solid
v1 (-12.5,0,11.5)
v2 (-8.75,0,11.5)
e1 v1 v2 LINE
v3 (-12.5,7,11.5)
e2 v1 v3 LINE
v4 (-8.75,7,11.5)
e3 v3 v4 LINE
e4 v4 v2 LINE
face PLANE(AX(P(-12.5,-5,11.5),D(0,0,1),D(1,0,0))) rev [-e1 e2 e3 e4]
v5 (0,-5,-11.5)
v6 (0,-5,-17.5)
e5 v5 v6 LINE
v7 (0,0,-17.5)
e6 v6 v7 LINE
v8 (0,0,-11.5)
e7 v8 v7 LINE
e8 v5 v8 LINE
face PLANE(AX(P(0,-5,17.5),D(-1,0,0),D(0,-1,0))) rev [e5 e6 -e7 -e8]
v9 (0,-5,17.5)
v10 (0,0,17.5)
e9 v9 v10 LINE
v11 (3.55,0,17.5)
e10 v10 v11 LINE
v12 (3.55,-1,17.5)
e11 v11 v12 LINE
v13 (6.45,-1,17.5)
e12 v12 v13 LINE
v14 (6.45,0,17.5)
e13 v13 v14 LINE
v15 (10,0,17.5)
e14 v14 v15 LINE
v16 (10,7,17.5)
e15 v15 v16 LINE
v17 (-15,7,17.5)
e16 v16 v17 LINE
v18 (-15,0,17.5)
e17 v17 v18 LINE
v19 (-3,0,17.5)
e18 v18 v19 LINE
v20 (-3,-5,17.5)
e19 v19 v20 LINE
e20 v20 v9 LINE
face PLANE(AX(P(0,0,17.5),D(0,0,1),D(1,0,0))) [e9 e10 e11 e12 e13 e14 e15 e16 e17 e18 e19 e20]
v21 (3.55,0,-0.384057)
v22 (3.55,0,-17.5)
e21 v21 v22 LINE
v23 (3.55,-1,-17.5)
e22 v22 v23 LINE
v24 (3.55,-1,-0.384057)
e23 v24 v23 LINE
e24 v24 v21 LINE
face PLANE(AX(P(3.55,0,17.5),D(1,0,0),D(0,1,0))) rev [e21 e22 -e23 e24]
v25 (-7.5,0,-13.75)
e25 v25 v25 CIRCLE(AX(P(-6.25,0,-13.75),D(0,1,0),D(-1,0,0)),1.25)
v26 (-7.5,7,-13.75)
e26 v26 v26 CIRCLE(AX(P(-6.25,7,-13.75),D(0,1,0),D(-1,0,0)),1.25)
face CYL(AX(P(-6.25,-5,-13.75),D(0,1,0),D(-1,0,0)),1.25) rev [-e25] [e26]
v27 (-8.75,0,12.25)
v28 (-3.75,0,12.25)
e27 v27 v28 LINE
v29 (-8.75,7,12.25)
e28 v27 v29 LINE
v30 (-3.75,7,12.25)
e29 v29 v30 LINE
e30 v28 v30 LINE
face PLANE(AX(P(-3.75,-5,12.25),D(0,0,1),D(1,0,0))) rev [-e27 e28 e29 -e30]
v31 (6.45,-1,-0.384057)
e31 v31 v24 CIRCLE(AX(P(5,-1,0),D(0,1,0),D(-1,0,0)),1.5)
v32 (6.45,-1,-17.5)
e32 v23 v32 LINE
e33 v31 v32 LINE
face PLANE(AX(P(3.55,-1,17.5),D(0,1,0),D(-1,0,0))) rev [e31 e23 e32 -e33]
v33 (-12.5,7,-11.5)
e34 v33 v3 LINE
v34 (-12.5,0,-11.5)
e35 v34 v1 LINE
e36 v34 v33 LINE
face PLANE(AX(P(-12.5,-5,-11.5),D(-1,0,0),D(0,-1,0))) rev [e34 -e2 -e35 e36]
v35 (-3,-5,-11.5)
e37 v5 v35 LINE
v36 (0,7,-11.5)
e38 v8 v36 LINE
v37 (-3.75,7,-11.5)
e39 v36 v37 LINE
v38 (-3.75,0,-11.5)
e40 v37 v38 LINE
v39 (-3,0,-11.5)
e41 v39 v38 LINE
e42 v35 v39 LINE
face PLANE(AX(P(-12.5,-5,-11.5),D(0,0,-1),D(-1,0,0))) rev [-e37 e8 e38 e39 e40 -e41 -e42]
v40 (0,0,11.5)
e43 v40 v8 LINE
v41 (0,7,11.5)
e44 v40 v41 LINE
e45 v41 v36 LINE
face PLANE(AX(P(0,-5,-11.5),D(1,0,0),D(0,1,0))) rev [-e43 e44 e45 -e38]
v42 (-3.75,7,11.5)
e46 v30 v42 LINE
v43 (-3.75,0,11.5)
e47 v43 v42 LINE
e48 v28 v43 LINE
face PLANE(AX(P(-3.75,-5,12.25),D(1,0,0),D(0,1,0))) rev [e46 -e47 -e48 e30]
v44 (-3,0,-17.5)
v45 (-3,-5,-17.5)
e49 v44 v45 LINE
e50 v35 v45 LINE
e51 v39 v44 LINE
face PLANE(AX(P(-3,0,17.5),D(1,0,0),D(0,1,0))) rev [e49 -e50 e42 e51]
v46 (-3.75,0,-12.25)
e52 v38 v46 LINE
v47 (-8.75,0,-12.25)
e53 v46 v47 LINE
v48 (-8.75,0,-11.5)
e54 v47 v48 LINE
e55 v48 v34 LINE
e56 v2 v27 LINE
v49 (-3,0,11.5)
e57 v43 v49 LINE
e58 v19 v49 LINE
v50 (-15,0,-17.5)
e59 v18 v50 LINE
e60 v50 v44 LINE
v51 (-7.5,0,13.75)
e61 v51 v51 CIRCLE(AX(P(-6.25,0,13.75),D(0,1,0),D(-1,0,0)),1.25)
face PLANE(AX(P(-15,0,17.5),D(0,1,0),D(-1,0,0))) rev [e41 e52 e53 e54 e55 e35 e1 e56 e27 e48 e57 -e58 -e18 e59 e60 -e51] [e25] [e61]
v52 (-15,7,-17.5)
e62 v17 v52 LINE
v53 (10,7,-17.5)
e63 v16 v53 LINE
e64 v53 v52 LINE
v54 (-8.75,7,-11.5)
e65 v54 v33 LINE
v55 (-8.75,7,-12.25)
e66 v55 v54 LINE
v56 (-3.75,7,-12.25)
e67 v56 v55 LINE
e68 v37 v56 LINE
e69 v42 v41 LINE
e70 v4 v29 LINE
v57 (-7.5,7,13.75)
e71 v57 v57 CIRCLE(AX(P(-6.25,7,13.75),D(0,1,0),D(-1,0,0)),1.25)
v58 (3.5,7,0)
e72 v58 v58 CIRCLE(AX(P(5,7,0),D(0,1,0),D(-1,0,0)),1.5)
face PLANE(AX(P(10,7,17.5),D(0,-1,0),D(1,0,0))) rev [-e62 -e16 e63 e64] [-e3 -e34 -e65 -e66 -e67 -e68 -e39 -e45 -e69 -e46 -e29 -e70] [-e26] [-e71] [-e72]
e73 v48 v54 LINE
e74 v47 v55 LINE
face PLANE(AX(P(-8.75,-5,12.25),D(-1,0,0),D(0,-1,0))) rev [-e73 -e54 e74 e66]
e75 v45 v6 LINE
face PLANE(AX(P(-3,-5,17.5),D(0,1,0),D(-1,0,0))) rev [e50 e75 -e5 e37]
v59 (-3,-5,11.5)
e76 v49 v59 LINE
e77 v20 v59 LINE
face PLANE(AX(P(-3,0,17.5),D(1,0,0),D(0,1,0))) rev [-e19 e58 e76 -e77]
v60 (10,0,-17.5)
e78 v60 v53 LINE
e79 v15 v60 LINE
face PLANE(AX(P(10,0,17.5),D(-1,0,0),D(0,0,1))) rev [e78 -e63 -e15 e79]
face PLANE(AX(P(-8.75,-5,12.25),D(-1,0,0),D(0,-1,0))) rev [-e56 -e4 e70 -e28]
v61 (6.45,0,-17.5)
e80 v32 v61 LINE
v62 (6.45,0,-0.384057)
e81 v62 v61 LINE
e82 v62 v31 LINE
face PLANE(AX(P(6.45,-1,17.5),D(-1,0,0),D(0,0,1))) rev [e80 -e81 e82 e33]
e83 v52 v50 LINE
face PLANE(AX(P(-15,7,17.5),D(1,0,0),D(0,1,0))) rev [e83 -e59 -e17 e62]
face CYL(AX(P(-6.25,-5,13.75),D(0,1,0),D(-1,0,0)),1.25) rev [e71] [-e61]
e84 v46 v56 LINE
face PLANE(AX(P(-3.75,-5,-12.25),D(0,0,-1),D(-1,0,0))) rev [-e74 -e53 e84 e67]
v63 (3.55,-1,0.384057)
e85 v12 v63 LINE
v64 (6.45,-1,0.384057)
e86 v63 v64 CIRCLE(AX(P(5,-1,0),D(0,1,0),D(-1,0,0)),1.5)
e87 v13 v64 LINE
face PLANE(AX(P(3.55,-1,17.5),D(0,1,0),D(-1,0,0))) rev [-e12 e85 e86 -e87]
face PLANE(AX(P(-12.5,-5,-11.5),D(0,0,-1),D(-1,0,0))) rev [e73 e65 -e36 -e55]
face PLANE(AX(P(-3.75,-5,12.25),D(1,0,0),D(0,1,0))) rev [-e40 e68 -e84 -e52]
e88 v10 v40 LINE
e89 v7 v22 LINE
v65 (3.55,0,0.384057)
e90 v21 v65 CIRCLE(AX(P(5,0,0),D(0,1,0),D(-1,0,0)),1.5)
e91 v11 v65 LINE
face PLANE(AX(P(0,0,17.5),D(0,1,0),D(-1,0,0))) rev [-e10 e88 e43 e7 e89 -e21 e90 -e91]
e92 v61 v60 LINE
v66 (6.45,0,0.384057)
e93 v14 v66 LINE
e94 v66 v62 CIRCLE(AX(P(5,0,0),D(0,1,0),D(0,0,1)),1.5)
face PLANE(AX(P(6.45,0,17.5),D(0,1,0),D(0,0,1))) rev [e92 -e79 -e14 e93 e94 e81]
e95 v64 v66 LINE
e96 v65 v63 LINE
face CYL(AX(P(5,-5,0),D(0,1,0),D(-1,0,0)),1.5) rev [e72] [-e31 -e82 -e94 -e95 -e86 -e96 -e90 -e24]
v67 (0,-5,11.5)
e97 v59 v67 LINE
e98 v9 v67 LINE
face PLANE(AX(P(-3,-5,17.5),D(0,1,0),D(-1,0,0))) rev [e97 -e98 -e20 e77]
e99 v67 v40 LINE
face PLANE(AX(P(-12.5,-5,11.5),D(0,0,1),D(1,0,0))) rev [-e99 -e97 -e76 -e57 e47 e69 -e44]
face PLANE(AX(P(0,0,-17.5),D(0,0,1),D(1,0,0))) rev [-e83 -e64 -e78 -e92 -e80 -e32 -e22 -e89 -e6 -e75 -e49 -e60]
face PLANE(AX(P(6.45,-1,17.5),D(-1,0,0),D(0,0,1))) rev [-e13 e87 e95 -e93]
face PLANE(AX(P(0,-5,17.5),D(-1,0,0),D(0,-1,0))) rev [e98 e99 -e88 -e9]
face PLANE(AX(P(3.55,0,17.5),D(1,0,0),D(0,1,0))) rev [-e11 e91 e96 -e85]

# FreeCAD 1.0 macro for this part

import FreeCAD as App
import Part
import Sketcher

V = App.Vector
Q = App.Units.Quantity


def add_polygon(sketch, points):
    """Adds a closed chain of lines whose ends are joined by coincident constraints."""
    first, n = sketch.GeometryCount, len(points)
    for a, b in zip(points, points[1:] + points[:1]):
        sketch.addGeometry(Part.LineSegment(App.Vector(*a, 0), App.Vector(*b, 0)), False)
    for i in range(n):
        sketch.addConstraint(Sketcher.Constraint("Coincident", first + i, 2, first + (i + 1) % n, 1))

doc = App.newDocument("Part")
body = doc.addObject("PartDesign::Body", "Body")

# Sketch on XY plane
sketch1 = doc.addObject("Sketcher::SketchObject", "Sketch")
body.addObject(sketch1)
sketch1.AttachmentSupport = (doc.XY_Plane, [""])
sketch1.MapMode = "FlatFace"
add_polygon(sketch1, [(10, 0), (10, 7), (-15, 7), (-15, 0), (-3, 0), (-3, -5), (0, -5), (0, 0), (3.5, 0), (3.5, -1), (6.5, -1), (6.5, 0)])  # lines 0-11
sketch1.addConstraint(Sketcher.Constraint("Vertical", 0))
sketch1.addConstraint(Sketcher.Constraint("Horizontal", 1))
sketch1.addConstraint(Sketcher.Constraint("Vertical", 2))
sketch1.addConstraint(Sketcher.Constraint("Horizontal", 3))
sketch1.addConstraint(Sketcher.Constraint("Vertical", 4))
sketch1.addConstraint(Sketcher.Constraint("Horizontal", 5))
sketch1.addConstraint(Sketcher.Constraint("Vertical", 6))
sketch1.addConstraint(Sketcher.Constraint("Horizontal", 7))
sketch1.addConstraint(Sketcher.Constraint("Vertical", 8))
sketch1.addConstraint(Sketcher.Constraint("Horizontal", 9))
sketch1.addConstraint(Sketcher.Constraint("Vertical", 10))
sketch1.addConstraint(Sketcher.Constraint("Horizontal", 11))
sketch1.addConstraint(Sketcher.Constraint("Coincident", 6, 2, -1, 1))
sketch1.addConstraint(Sketcher.Constraint("PointOnObject", 2, 2, -1))
sketch1.addConstraint(Sketcher.Constraint("PointOnObject", 10, 2, -1))
sketch1.addConstraint(Sketcher.Constraint("Equal", 7, 11))
sketch1.addConstraint(Sketcher.Constraint("DistanceX", 1, 2, 1, 1, Q("25 mm")))
sketch1.addConstraint(Sketcher.Constraint("DistanceX", 3, 1, 3, 2, Q("12 mm")))
sketch1.addConstraint(Sketcher.Constraint("DistanceX", 5, 1, 5, 2, Q("3 mm")))
sketch1.addConstraint(Sketcher.Constraint("DistanceY", 0, 1, 0, 2, Q("7 mm")))
sketch1.addConstraint(Sketcher.Constraint("DistanceY", 4, 2, 4, 1, Q("5 mm")))
sketch1.addConstraint(Sketcher.Constraint("DistanceY", 8, 2, 8, 1, Q("1 mm")))
sketch1.addConstraint(Sketcher.Constraint("DistanceX", 9, 1, 9, 2, Q("2.9 mm")))
pad1 = doc.addObject("PartDesign::Pad", "Pad")
body.addObject(pad1)
pad1.Profile = sketch1
pad1.Length = 35
pad1.Midplane = True

# Sketch on XZ plane
sketch2 = doc.addObject("Sketcher::SketchObject", "Sketch001")
body.addObject(sketch2)
sketch2.AttachmentSupport = (doc.XZ_Plane, [""])
sketch2.MapMode = "FlatFace"
sketch2.AttachmentOffset = App.Placement(V(0, 0, -7), App.Rotation())
sketch2.addGeometry(Part.Circle(V(5, 0, 0), V(0, 0, 1), 1.5), False)
sketch2.addGeometry(Part.Circle(V(-6.2, -13.8, 0), V(0, 0, 1), 1.2), False)
sketch2.addGeometry(Part.Circle(V(-6.2, 13.8, 0), V(0, 0, 1), 1.2), False)
sketch2.addConstraint(Sketcher.Constraint("Equal", 1, 2))
sketch2.addConstraint(Sketcher.Constraint("Symmetric", 1, 3, 2, 3, -1))
sketch2.addConstraint(Sketcher.Constraint("PointOnObject", 0, 3, -1))
sketch2.addConstraint(Sketcher.Constraint("Diameter", 0, Q("3 mm")))
sketch2.addConstraint(Sketcher.Constraint("Diameter", 1, Q("2.5 mm")))
sketch2.addConstraint(Sketcher.Constraint("DistanceX", -1, 1, 0, 3, Q("5 mm")))
sketch2.addConstraint(Sketcher.Constraint("DistanceY", 1, 3, 2, 3, Q("27.5 mm")))
sketch2.addConstraint(Sketcher.Constraint("DistanceX", 1, 3, -1, 1, Q("6.25 mm")))
pocket1 = doc.addObject("PartDesign::Pocket", "Pocket")
body.addObject(pocket1)
pocket1.Profile = sketch2
pocket1.Type = "ThroughAll"
pocket1.Reversed = True

# Sketch on XZ plane
sketch3 = doc.addObject("Sketcher::SketchObject", "Sketch002")
body.addObject(sketch3)
sketch3.AttachmentSupport = (doc.XZ_Plane, [""])
sketch3.MapMode = "FlatFace"
sketch3.AttachmentOffset = App.Placement(V(0, 0, -7), App.Rotation())
add_polygon(sketch3, [(-12, -12), (-12, 12), (0, 12), (0, -12)])  # lines 0-3
sketch3.addConstraint(Sketcher.Constraint("Vertical", 0))
sketch3.addConstraint(Sketcher.Constraint("Horizontal", 1))
sketch3.addConstraint(Sketcher.Constraint("Vertical", 2))
sketch3.addConstraint(Sketcher.Constraint("Horizontal", 3))
sketch3.addConstraint(Sketcher.Constraint("Symmetric", 1, 2, 2, 2, -1, 1))
sketch3.addConstraint(Sketcher.Constraint("DistanceY", 0, 1, 0, 2, Q("23 mm")))
sketch3.addConstraint(Sketcher.Constraint("DistanceX", 1, 1, 1, 2, Q("12.5 mm")))
pocket2 = doc.addObject("PartDesign::Pocket", "Pocket001")
body.addObject(pocket2)
pocket2.Profile = sketch3
pocket2.Type = "ThroughAll"
pocket2.Reversed = True

# Sketch on XZ plane
sketch4 = doc.addObject("Sketcher::SketchObject", "Sketch003")
body.addObject(sketch4)
sketch4.AttachmentSupport = (doc.XZ_Plane, [""])
sketch4.MapMode = "FlatFace"
sketch4.AttachmentOffset = App.Placement(V(0, 0, -7), App.Rotation())
add_polygon(sketch4, [(-9, -12), (-9, 12), (-4, 12), (-4, -12)])  # lines 0-3
sketch4.addConstraint(Sketcher.Constraint("Vertical", 0))
sketch4.addConstraint(Sketcher.Constraint("Horizontal", 1))
sketch4.addConstraint(Sketcher.Constraint("Vertical", 2))
sketch4.addConstraint(Sketcher.Constraint("Horizontal", 3))
sketch4.addConstraint(Sketcher.Constraint("DistanceX", 1, 1, 1, 2, Q("5 mm")))
sketch4.addConstraint(Sketcher.Constraint("DistanceY", 0, 1, 0, 2, Q("24.5 mm")))
sketch4.addConstraint(Sketcher.Constraint("DistanceX", 0, 2, -1, 1, Q("8.75 mm")))
sketch4.addConstraint(Sketcher.Constraint("DistanceY", -1, 1, 0, 2, Q("12.25 mm")))
pocket3 = doc.addObject("PartDesign::Pocket", "Pocket002")
body.addObject(pocket3)
pocket3.Profile = sketch4
pocket3.Type = "ThroughAll"
pocket3.Reversed = True

doc.recompute()
